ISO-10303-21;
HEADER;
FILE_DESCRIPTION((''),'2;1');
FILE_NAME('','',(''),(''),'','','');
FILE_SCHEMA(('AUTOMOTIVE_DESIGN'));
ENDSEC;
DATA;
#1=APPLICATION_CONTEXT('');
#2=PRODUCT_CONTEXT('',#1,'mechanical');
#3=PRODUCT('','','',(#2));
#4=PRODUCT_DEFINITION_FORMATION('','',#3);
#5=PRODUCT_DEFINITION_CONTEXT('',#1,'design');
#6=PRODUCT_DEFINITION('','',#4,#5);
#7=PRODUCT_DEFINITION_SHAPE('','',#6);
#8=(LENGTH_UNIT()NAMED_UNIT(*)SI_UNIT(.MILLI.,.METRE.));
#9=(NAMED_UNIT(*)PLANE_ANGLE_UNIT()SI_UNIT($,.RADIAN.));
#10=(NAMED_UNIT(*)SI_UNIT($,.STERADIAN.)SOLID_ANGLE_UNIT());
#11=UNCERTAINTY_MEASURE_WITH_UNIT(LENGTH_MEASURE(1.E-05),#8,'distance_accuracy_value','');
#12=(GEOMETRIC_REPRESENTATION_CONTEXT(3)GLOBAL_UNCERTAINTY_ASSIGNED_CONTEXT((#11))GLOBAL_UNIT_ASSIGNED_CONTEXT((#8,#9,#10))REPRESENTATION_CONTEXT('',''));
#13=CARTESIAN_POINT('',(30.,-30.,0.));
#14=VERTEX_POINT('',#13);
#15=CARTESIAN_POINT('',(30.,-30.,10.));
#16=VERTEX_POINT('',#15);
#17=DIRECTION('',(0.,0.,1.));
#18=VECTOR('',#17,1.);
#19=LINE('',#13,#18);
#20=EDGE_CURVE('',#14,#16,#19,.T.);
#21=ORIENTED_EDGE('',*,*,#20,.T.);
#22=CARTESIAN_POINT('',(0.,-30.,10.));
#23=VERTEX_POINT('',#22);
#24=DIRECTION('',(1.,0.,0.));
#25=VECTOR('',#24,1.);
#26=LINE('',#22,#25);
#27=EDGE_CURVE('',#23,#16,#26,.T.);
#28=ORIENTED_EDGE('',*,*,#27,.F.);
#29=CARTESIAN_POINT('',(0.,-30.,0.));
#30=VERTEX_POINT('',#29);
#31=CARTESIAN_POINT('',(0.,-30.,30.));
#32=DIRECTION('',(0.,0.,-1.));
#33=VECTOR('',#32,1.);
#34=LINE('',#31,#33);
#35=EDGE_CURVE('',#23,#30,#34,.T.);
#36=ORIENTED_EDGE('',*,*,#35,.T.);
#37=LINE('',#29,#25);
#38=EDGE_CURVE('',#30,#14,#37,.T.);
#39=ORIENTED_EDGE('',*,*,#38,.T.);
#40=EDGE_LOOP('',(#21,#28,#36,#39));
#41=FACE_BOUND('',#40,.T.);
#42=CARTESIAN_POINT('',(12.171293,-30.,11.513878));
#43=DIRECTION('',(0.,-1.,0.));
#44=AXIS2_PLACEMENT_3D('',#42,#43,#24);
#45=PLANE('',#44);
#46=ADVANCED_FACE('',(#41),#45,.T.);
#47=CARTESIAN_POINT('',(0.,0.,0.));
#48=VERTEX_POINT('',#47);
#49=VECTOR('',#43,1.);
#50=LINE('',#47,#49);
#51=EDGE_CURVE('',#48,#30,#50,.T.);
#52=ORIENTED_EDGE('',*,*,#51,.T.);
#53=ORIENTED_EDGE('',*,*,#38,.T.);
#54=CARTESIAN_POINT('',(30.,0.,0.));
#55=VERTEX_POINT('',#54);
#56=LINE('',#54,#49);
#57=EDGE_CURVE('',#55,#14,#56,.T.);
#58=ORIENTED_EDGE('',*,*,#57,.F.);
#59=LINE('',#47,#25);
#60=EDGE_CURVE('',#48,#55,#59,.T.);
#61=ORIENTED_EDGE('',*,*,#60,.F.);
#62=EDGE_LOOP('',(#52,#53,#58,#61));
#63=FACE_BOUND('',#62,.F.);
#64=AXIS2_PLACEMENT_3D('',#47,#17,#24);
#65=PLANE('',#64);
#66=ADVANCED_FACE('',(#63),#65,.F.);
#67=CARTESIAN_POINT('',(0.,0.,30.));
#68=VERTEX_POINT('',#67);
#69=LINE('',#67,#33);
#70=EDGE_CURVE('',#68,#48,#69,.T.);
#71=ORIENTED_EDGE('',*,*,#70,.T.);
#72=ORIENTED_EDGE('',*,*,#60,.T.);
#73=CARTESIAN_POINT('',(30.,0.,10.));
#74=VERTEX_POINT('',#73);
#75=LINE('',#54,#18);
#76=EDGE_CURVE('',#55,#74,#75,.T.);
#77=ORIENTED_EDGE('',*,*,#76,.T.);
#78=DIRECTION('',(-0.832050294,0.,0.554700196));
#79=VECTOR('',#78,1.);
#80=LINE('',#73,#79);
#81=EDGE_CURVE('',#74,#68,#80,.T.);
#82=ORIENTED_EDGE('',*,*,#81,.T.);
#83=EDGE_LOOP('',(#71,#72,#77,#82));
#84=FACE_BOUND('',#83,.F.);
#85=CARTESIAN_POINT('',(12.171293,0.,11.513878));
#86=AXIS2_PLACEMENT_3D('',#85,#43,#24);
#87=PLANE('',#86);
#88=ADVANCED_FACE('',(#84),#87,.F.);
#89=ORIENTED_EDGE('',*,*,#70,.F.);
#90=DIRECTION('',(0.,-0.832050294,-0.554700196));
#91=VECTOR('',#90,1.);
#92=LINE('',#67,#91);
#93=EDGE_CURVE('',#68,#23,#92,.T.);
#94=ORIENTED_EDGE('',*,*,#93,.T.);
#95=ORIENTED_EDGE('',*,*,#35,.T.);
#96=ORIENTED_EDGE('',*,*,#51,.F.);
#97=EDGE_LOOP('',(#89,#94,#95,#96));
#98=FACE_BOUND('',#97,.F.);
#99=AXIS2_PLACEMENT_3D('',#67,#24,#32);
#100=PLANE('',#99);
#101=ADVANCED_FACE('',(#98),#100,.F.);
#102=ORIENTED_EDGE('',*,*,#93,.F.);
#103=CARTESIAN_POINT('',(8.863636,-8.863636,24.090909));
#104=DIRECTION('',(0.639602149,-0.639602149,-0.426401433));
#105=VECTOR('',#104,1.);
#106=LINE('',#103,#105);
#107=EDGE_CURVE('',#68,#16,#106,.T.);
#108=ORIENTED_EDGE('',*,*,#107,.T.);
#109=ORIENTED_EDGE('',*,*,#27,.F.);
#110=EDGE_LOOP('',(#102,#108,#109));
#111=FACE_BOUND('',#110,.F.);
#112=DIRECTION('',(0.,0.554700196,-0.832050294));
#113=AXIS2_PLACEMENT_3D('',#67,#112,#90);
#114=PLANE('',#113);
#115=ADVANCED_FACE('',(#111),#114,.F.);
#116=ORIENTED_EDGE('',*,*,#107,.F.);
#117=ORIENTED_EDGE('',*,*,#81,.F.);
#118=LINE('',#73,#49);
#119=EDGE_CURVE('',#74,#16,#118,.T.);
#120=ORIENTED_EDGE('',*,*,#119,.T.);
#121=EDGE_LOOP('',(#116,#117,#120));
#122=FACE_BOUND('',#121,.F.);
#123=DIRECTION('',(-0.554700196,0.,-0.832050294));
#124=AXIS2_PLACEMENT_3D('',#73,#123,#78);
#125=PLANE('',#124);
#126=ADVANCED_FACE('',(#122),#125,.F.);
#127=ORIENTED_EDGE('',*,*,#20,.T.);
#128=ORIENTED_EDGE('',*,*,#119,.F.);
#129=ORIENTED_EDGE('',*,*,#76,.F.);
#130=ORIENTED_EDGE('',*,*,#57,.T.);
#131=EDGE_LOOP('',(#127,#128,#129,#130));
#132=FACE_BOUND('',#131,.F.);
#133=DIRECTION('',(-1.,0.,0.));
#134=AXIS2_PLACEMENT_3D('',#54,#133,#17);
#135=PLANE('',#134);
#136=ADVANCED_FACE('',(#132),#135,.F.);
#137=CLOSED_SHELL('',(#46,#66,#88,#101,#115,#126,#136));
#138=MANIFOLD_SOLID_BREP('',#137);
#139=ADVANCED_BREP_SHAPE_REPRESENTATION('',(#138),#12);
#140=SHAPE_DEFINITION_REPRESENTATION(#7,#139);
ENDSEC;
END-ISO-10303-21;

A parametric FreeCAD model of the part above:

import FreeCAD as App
import Part
import Sketcher


def add_polygon(sketch, points):
    """Adds a closed chain of lines whose ends are joined by coincident constraints."""
    first, n = sketch.GeometryCount, len(points)
    for a, b in zip(points, points[1:] + points[:1]):
        sketch.addGeometry(Part.LineSegment(App.Vector(*a, 0), App.Vector(*b, 0)), False)
    for i in range(n):
        sketch.addConstraint(Sketcher.Constraint("Coincident", first + i, 2, first + (i + 1) % n, 1))

doc = App.newDocument("Part")
body = doc.addObject("PartDesign::Body", "Body")

sketch1 = body.newObject("Sketcher::SketchObject", "Sketch")
sketch1.AttachmentSupport = (doc.getObject("XZ_Plane"), [""])
sketch1.MapMode = "FlatFace"
add_polygon(sketch1, [(0, 30), (0, 0), (30, 0), (30, 10)])
sketch1.addConstraint([
    Sketcher.Constraint("Vertical", 0),
    Sketcher.Constraint("Horizontal", 1),
    Sketcher.Constraint("Vertical", 2),
    Sketcher.Constraint("Coincident", 0, 2, -1, 1),
    Sketcher.Constraint("Equal", 1, 0),
    Sketcher.Constraint("DistanceX", 1, 1, 1, 2, 30.0),
    Sketcher.Constraint("DistanceY", 2, 1, 2, 2, 10.0),
])
pad1 = body.newObject("PartDesign::Pad", "Pad")
pad1.Profile = sketch1
pad1.Length = 30

sketch2 = body.newObject("Sketcher::SketchObject", "Sketch001")
sketch2.AttachmentSupport = (doc.getObject("YZ_Plane"), [""])
sketch2.MapMode = "FlatFace"
add_polygon(sketch2, [(-30, 10), (-30, 30), (0, 30)])
sketch2.addConstraint([
    Sketcher.Constraint("Vertical", 0),
    Sketcher.Constraint("Horizontal", 1),
    Sketcher.Constraint("PointOnObject", 1, 2, -2),
    Sketcher.Constraint("DistanceX", 1, 1, 1, 2, 30.0),
    Sketcher.Constraint("DistanceY", 0, 1, 0, 2, 20.0),
    Sketcher.Constraint("DistanceY", -1, 1, 0, 2, 30.0),
])
pocket1 = body.newObject("PartDesign::Pocket", "Pocket")
pocket1.Profile = sketch2
pocket1.Type = "ThroughAll"
pocket1.Reversed = True

doc.recompute()
